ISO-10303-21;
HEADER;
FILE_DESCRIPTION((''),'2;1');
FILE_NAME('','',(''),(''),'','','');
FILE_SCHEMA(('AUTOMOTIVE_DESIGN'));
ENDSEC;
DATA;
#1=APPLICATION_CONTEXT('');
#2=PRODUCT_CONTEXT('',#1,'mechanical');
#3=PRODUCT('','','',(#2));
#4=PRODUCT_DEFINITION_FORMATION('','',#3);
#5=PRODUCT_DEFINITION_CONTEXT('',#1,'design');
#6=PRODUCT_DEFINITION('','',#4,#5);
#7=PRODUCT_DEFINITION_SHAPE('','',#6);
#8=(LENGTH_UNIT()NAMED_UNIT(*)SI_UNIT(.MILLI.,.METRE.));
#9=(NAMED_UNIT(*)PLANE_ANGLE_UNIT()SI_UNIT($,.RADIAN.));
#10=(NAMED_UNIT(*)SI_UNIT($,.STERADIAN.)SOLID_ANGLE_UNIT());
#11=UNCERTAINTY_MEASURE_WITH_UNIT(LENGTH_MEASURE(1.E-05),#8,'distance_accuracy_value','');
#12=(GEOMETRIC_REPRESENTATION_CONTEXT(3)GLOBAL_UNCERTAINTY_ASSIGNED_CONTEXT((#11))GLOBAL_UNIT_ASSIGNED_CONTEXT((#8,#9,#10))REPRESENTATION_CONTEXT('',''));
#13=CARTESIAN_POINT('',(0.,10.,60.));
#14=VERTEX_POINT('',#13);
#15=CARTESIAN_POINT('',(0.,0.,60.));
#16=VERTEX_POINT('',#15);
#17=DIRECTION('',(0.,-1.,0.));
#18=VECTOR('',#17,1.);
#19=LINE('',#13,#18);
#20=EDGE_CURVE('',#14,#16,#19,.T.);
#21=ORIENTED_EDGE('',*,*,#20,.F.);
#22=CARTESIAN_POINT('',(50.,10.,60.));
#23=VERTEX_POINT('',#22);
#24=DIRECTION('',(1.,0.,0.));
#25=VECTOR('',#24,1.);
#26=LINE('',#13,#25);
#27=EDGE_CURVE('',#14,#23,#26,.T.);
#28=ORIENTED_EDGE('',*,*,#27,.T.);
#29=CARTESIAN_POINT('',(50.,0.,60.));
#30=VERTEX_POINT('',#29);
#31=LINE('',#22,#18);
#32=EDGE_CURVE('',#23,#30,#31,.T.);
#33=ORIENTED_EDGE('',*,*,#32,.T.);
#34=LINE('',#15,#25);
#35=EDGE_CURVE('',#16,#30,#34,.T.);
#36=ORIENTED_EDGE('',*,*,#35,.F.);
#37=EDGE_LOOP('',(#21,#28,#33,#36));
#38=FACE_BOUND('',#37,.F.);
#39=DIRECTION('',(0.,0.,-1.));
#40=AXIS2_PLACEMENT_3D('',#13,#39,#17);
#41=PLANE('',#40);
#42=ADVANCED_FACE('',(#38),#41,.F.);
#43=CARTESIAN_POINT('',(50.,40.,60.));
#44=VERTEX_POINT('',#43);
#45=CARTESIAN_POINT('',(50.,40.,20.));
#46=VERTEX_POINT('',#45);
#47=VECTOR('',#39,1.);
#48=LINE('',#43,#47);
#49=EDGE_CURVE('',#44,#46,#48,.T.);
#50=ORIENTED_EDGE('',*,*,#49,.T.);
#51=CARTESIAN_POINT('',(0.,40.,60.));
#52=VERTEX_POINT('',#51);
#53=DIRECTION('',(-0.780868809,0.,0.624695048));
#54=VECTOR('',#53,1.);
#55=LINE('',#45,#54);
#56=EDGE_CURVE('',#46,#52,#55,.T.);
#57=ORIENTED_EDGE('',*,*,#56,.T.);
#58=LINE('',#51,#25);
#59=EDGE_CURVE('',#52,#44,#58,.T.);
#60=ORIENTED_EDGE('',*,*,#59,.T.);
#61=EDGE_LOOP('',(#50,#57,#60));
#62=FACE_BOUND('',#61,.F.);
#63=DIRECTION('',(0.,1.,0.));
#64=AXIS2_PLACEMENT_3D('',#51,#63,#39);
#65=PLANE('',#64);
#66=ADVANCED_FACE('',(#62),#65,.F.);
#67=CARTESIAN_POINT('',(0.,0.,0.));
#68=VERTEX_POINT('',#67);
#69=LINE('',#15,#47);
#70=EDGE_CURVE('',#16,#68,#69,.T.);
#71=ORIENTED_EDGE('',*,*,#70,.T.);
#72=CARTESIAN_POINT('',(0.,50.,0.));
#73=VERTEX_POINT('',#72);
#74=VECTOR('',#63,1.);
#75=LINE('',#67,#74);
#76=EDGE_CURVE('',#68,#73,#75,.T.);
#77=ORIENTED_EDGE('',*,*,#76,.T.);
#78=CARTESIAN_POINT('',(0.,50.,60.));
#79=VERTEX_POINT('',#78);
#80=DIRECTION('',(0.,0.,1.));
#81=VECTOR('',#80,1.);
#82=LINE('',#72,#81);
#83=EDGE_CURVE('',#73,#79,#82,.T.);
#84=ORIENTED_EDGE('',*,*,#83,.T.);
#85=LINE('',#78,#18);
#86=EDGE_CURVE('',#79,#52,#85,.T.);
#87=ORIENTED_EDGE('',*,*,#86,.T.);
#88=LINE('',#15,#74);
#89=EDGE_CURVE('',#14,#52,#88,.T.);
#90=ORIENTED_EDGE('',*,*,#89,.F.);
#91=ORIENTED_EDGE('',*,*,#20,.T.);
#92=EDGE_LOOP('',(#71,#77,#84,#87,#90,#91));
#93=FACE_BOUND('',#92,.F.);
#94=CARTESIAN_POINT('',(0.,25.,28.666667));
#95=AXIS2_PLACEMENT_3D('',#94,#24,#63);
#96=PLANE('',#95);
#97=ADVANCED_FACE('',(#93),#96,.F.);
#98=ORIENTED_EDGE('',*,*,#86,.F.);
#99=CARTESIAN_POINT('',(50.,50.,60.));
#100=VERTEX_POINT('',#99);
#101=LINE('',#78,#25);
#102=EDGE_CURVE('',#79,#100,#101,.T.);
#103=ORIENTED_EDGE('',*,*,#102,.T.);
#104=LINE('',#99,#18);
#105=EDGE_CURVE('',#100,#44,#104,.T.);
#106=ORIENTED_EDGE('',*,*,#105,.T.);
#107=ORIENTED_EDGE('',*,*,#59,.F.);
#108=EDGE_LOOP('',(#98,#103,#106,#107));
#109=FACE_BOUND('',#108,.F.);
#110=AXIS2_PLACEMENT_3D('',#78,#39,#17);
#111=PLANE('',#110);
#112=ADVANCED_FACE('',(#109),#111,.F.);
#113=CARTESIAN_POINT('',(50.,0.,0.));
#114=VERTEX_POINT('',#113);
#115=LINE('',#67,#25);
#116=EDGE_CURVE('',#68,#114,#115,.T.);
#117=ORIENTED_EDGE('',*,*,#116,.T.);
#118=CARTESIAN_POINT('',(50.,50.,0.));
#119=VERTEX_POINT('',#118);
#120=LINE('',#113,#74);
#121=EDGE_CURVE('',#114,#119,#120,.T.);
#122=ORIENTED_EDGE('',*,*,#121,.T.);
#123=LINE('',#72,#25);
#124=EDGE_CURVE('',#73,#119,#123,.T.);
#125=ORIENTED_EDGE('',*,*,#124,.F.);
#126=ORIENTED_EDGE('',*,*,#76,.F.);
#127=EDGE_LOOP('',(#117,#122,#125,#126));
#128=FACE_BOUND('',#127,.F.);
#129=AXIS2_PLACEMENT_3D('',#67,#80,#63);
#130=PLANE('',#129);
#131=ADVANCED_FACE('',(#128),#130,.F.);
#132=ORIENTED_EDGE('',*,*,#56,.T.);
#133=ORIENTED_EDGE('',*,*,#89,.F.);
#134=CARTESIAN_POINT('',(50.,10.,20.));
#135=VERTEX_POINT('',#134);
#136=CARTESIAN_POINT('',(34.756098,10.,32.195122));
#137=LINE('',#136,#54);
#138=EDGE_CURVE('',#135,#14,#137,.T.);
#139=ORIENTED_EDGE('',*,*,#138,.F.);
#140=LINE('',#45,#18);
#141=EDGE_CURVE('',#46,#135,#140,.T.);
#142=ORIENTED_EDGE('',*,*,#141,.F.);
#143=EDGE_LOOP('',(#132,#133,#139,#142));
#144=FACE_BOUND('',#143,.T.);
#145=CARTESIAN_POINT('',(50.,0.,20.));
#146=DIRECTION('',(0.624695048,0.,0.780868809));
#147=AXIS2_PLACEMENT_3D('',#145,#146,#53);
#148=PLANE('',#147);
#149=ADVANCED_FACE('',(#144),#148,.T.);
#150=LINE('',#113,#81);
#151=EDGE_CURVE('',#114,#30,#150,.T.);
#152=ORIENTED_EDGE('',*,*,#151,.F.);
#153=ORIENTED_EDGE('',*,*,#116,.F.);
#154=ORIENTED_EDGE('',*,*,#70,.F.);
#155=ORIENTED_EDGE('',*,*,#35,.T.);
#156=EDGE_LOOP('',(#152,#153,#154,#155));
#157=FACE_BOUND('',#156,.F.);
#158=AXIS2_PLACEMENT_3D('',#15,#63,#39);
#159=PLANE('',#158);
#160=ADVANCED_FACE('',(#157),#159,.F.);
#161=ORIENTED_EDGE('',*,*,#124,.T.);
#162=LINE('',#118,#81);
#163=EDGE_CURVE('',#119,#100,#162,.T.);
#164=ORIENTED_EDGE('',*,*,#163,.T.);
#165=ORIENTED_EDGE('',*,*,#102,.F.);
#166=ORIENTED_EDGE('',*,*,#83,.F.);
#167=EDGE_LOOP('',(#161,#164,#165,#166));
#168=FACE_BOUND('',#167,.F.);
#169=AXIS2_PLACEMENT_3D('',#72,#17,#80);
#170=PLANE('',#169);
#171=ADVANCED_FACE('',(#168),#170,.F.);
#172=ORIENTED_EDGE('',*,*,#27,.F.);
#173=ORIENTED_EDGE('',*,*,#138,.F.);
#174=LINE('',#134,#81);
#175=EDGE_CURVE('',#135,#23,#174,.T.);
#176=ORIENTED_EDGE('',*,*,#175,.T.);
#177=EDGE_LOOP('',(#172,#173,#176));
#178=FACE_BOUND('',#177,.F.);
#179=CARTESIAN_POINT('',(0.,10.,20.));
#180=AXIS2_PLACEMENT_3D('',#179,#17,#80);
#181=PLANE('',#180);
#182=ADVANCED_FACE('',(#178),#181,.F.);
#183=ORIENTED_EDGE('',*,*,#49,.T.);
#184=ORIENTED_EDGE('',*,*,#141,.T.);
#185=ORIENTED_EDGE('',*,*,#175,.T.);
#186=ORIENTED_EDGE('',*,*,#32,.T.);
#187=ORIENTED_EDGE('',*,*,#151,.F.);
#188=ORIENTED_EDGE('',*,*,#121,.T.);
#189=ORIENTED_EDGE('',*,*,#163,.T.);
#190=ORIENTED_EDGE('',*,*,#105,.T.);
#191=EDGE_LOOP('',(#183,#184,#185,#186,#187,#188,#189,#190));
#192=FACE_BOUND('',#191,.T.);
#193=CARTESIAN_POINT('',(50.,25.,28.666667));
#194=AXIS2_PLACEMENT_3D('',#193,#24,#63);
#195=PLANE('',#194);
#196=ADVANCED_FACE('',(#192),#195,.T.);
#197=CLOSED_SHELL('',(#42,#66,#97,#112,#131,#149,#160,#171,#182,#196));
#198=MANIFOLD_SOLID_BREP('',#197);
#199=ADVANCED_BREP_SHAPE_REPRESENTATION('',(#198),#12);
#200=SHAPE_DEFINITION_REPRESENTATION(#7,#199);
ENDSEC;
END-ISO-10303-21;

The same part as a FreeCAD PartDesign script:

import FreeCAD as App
import Part
import Sketcher

doc = App.newDocument("Part")
body = doc.addObject("PartDesign::Body", "Body")

# Sketch on YZ plane
sketch1 = body.newObject("Sketcher::SketchObject", "Sketch")
sketch1.AttachmentSupport = (doc.getObject("YZ_Plane"), [""])
sketch1.MapMode = "FlatFace"
sketch1.addGeometry(Part.LineSegment(App.Vector(0, 60, 0), App.Vector(0, 0, 0)), False)
sketch1.addGeometry(Part.LineSegment(App.Vector(0, 0, 0), App.Vector(50, 0, 0)), False)
sketch1.addGeometry(Part.LineSegment(App.Vector(50, 0, 0), App.Vector(50, 60, 0)), False)
sketch1.addGeometry(Part.LineSegment(App.Vector(50, 60, 0), App.Vector(40, 60, 0)), False)
sketch1.addGeometry(Part.LineSegment(App.Vector(40, 60, 0), App.Vector(40, 20, 0)), False)
sketch1.addGeometry(Part.LineSegment(App.Vector(40, 20, 0), App.Vector(10, 20, 0)), False)
sketch1.addGeometry(Part.LineSegment(App.Vector(10, 20, 0), App.Vector(10, 60, 0)), False)
sketch1.addGeometry(Part.LineSegment(App.Vector(10, 60, 0), App.Vector(0, 60, 0)), False)
sketch1.addConstraint(Sketcher.Constraint("Coincident", 0, 2, 1, 1))
sketch1.addConstraint(Sketcher.Constraint("Coincident", 1, 2, 2, 1))
sketch1.addConstraint(Sketcher.Constraint("Coincident", 2, 2, 3, 1))
sketch1.addConstraint(Sketcher.Constraint("Coincident", 3, 2, 4, 1))
sketch1.addConstraint(Sketcher.Constraint("Coincident", 4, 2, 5, 1))
sketch1.addConstraint(Sketcher.Constraint("Coincident", 5, 2, 6, 1))
sketch1.addConstraint(Sketcher.Constraint("Coincident", 6, 2, 7, 1))
sketch1.addConstraint(Sketcher.Constraint("Coincident", 7, 2, 0, 1))
sketch1.addConstraint(Sketcher.Constraint("Vertical", 0))
sketch1.addConstraint(Sketcher.Constraint("Horizontal", 1))
sketch1.addConstraint(Sketcher.Constraint("Vertical", 2))
sketch1.addConstraint(Sketcher.Constraint("Horizontal", 3))
sketch1.addConstraint(Sketcher.Constraint("Vertical", 4))
sketch1.addConstraint(Sketcher.Constraint("Horizontal", 5))
sketch1.addConstraint(Sketcher.Constraint("Vertical", 6))
sketch1.addConstraint(Sketcher.Constraint("Horizontal", 7))
sketch1.addConstraint(Sketcher.Constraint("Coincident", 0, 2, -1, 1))
sketch1.addConstraint(Sketcher.Constraint("Horizontal", 3, 2, 6, 2))
sketch1.addConstraint(Sketcher.Constraint("Equal", 3, 7))
sketch1.addConstraint(Sketcher.Constraint("DistanceX", 1, 1, 1, 2, 50.0))
sketch1.addConstraint(Sketcher.Constraint("DistanceX", 3, 2, 3, 1, 10.0))
sketch1.addConstraint(Sketcher.Constraint("DistanceY", 0, 2, 0, 1, 60.0))
sketch1.addConstraint(Sketcher.Constraint("DistanceY", 4, 2, 4, 1, 40.0))
pad1 = body.newObject("PartDesign::Pad", "Pad")
pad1.Profile = sketch1
pad1.Length = 50

# Sketch on XZ plane
sketch2 = body.newObject("Sketcher::SketchObject", "Sketch001")
sketch2.AttachmentSupport = (doc.getObject("XZ_Plane"), [""])
sketch2.MapMode = "FlatFace"
sketch2.addGeometry(Part.LineSegment(App.Vector(50, 20, 0), App.Vector(0, 60, 0)), False)
sketch2.addGeometry(Part.LineSegment(App.Vector(0, 60, 0), App.Vector(0, 20, 0)), False)
sketch2.addGeometry(Part.LineSegment(App.Vector(0, 20, 0), App.Vector(50, 20, 0)), False)
sketch2.addConstraint(Sketcher.Constraint("Coincident", 0, 2, 1, 1))
sketch2.addConstraint(Sketcher.Constraint("Coincident", 1, 2, 2, 1))
sketch2.addConstraint(Sketcher.Constraint("Coincident", 2, 2, 0, 1))
sketch2.addConstraint(Sketcher.Constraint("Vertical", 1))
sketch2.addConstraint(Sketcher.Constraint("Horizontal", 2))
sketch2.addConstraint(Sketcher.Constraint("PointOnObject", 0, 2, -2))
sketch2.addConstraint(Sketcher.Constraint("DistanceX", 2, 1, 2, 2, 50.0))
sketch2.addConstraint(Sketcher.Constraint("DistanceY", 1, 2, 1, 1, 40.0))
sketch2.addConstraint(Sketcher.Constraint("DistanceY", -1, 1, 0, 2, 60.0))
pad2 = body.newObject("PartDesign::Pad", "Pad001")
pad2.Profile = sketch2
pad2.Length = 40
pad2.Reversed = True

doc.recompute()
